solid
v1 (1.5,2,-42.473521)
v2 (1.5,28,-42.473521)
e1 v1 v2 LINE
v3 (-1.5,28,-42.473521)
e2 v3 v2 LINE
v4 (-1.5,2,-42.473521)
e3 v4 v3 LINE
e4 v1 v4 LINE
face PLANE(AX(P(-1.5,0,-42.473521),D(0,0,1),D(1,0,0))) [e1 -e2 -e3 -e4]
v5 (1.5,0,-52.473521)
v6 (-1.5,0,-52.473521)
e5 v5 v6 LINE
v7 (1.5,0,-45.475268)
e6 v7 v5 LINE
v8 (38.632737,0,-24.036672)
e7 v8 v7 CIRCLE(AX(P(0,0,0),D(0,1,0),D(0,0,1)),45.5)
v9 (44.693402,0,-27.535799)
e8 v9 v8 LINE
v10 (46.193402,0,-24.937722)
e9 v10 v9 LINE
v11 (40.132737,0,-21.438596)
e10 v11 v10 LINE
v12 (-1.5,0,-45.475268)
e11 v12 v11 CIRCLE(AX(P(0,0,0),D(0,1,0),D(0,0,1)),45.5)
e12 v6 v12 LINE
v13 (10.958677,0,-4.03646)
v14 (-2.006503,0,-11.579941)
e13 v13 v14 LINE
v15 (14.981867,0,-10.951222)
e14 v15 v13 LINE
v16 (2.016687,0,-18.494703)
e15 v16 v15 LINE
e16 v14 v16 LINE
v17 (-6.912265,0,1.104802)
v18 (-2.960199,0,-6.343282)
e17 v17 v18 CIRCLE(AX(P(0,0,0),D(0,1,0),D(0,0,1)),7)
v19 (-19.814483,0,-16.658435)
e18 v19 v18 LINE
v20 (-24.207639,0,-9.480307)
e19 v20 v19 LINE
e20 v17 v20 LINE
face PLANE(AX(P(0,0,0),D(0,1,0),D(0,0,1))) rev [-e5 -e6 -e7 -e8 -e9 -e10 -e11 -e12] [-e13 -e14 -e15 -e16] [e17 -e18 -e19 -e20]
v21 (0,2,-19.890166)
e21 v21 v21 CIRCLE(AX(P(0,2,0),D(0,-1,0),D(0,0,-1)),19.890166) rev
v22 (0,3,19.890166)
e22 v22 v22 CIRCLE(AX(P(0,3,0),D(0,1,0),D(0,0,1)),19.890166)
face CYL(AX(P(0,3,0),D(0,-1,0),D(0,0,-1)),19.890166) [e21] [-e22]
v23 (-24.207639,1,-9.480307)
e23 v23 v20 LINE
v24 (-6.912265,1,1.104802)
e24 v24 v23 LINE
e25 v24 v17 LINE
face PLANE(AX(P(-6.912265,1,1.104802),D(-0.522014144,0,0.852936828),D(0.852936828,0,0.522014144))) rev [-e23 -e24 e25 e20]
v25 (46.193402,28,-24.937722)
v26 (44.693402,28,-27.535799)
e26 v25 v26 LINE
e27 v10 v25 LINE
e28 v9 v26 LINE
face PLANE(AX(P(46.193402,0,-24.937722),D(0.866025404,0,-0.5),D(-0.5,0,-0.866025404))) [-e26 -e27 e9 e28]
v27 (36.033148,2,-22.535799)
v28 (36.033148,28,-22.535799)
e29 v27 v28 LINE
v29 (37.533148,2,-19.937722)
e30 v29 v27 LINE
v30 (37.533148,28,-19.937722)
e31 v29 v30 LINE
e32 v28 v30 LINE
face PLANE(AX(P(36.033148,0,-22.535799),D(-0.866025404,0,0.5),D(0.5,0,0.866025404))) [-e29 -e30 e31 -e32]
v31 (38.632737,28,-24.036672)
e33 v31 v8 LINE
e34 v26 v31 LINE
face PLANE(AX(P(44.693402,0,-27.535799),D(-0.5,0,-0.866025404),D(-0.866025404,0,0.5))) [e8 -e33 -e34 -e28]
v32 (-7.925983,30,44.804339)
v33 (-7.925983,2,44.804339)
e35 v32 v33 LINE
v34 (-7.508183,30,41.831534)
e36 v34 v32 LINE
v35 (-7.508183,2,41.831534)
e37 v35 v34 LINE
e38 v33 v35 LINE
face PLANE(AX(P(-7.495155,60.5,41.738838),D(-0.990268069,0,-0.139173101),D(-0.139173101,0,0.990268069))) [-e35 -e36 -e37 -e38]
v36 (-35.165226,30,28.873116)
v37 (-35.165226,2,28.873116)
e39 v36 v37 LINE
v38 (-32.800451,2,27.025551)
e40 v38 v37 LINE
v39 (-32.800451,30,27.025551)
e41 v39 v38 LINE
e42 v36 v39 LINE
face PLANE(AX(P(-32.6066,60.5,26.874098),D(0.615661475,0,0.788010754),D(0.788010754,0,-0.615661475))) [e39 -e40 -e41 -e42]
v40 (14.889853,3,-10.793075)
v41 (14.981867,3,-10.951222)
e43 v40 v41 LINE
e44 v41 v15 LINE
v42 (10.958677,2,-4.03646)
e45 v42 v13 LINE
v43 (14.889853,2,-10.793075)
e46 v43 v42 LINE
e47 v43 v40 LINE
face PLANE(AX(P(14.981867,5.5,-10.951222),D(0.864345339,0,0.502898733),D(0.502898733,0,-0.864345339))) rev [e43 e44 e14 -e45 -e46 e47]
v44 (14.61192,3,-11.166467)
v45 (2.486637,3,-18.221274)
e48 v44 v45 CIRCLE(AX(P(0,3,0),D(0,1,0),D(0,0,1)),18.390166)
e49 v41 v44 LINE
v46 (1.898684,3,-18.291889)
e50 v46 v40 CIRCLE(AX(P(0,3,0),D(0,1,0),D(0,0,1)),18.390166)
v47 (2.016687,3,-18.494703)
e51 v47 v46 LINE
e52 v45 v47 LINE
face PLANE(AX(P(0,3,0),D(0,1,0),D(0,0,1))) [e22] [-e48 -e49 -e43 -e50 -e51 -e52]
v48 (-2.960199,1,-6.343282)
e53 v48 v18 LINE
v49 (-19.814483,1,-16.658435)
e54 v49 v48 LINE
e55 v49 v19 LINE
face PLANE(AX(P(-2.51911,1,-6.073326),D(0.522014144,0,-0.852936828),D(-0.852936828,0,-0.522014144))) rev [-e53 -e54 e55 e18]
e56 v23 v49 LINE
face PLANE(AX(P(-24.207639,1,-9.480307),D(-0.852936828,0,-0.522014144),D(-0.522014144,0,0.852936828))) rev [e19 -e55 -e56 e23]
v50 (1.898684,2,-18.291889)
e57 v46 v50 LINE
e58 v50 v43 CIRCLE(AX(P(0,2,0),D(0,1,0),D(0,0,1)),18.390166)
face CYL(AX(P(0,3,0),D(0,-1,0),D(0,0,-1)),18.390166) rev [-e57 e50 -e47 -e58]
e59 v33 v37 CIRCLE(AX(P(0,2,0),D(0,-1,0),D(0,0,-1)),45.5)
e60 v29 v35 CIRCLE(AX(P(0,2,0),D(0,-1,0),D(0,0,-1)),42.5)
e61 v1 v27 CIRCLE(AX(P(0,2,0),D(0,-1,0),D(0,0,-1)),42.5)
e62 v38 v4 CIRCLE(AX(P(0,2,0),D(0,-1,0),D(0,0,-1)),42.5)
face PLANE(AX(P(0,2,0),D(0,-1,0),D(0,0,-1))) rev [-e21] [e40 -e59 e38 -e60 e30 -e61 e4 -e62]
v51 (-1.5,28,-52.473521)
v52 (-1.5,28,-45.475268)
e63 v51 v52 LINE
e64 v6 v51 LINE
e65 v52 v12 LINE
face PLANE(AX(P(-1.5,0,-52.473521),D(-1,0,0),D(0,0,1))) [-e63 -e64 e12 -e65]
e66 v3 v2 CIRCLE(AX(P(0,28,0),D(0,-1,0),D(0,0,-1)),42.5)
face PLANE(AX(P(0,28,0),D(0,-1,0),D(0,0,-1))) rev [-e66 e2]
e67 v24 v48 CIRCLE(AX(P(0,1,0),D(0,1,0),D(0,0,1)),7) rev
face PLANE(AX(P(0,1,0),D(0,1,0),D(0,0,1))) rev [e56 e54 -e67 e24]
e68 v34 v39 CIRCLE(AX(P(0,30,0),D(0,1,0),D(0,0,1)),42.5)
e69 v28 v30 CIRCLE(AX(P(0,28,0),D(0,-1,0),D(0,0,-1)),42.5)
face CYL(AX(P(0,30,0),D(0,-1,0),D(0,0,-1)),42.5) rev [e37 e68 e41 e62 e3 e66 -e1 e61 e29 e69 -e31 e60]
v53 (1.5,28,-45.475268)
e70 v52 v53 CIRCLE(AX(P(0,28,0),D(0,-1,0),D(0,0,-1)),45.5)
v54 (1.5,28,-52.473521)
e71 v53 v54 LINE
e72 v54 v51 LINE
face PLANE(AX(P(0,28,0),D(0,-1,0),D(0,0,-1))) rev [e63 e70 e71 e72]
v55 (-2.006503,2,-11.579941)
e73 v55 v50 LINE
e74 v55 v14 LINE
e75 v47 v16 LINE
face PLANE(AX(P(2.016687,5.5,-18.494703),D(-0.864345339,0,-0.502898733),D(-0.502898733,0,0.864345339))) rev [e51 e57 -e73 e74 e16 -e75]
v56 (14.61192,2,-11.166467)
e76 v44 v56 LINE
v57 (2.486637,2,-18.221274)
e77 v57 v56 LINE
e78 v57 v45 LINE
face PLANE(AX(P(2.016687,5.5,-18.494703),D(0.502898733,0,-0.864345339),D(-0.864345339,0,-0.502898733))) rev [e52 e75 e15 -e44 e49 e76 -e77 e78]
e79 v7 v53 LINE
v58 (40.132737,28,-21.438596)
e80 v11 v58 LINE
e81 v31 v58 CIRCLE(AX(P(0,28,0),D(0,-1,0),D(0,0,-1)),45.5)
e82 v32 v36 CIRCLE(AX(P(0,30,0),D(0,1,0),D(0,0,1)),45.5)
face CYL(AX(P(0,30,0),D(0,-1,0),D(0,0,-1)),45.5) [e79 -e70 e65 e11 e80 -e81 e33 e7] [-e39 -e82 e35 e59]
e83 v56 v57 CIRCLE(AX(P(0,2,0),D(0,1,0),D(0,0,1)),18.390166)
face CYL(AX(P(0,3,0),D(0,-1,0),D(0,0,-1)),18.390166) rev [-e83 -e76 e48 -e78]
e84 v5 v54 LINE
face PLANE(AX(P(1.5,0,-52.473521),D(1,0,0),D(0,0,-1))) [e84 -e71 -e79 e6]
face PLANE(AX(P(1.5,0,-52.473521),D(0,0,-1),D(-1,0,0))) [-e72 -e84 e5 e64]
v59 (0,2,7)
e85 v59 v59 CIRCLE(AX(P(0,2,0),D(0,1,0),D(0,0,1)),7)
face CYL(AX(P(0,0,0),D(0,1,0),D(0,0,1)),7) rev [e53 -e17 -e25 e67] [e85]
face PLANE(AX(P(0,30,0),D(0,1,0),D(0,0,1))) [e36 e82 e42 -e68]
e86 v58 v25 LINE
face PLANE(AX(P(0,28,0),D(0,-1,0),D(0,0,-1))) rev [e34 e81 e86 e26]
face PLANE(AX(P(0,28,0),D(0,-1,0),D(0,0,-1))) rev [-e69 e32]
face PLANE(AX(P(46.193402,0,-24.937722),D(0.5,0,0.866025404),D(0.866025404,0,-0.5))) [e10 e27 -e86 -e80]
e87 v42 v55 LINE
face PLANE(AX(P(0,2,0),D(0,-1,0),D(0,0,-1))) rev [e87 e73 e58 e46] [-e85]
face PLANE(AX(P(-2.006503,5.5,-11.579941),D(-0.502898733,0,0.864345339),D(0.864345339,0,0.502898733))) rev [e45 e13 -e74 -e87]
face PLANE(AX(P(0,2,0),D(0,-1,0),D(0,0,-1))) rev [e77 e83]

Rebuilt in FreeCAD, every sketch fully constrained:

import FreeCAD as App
import Part
import Sketcher

V = App.Vector
Q = App.Units.Quantity


def add_polygon(sketch, points):
    """Adds a closed chain of lines whose ends are joined by coincident constraints."""
    first, n = sketch.GeometryCount, len(points)
    for a, b in zip(points, points[1:] + points[:1]):
        sketch.addGeometry(Part.LineSegment(App.Vector(*a, 0), App.Vector(*b, 0)), False)
    for i in range(n):
        sketch.addConstraint(Sketcher.Constraint("Coincident", first + i, 2, first + (i + 1) % n, 1))

doc = App.newDocument("Part")
params = doc.addObject("Spreadsheet::Sheet", "Params")
for row, (alias, value) in enumerate([
    ("sketch1_diameter", "91 mm"),
    ("sketch1_diameter2", "85 mm"),
    ("pad1_length", "30 mm"),
    ("sketch2_diameter", "91 mm"),
    ("pad2_length", "2 mm"),
    ("sketch3_diameter", "14 mm"),
    ("pocket1_length", "2 mm"),
    ("sketch4_width", "3 mm"),
    ("sketch4_height", "10 mm"),
    ("sketch4_length", "10 mm"),
    ("sketch4_length2", "3 mm"),
    ("pad3_length", "26 mm"),
    ("pad3_length2", "2 mm"),
    ("pad4_length", "1 mm"),
    ("sketch6_length", "15 mm"),
    ("sketch6_length2", "8 mm"),
    ("pocket2_length", "5.5 mm"),
    ("pocket3_length", "58.5 mm"),
    ("pocket4_length", "1 mm"),
], start=1):
    params.set(f"A{row}", alias)
    params.set(f"B{row}", "=" + value)
    params.setAlias(f"B{row}", alias)

body = doc.addObject("PartDesign::Body", "Body")

# Sketch on XZ plane
sketch1 = doc.addObject("Sketcher::SketchObject", "Sketch")
body.addObject(sketch1)
sketch1.AttachmentSupport = (doc.XZ_Plane, [""])
sketch1.MapMode = "FlatFace"
sketch1.addGeometry([
    Part.Circle(V(0, 0, 0), V(0, 0, 1), 46),
    Part.Circle(V(0, 0, 0), V(0, 0, 1), 42),
], False)
sketch1.addConstraint([
    Sketcher.Constraint("Coincident", 0, 3, -1, 1),
    Sketcher.Constraint("Coincident", 1, 3, -1, 1),
    Sketcher.Constraint("Diameter", 0, 91.0),
    Sketcher.Constraint("Diameter", 1, 85.0),
])
sketch1.setExpression("Constraints[2]", "Params.sketch1_diameter")
sketch1.setExpression("Constraints[3]", "Params.sketch1_diameter2")
pad1 = doc.addObject("PartDesign::Pad", "Pad")
body.addObject(pad1)
pad1.Profile = sketch1
pad1.setExpression("Length", "Params.pad1_length")
pad1.Reversed = True

# Sketch on XZ plane
sketch2 = doc.addObject("Sketcher::SketchObject", "Sketch001")
body.addObject(sketch2)
sketch2.AttachmentSupport = (doc.XZ_Plane, [""])
sketch2.MapMode = "FlatFace"
sketch2.addGeometry(Part.Circle(V(0, 0, 0), V(0, 0, 1), 46), False)
sketch2.addConstraint([
    Sketcher.Constraint("Coincident", 0, 3, -1, 1),
    Sketcher.Constraint("Diameter", 0, 91.0),
])
sketch2.setExpression("Constraints[1]", "Params.sketch2_diameter")
pad2 = doc.addObject("PartDesign::Pad", "Pad001")
body.addObject(pad2)
pad2.Profile = sketch2
pad2.setExpression("Length", "Params.pad2_length")
pad2.Reversed = True

# Sketch on XZ plane
sketch3 = doc.addObject("Sketcher::SketchObject", "Sketch002")
body.addObject(sketch3)
sketch3.AttachmentSupport = (doc.XZ_Plane, [""])
sketch3.MapMode = "FlatFace"
sketch3.AttachmentOffset = App.Placement(V(0, 0, -2), App.Rotation())
sketch3.addGeometry(Part.Circle(V(0, 0, 0), V(0, 0, 1), 7), False)
sketch3.addConstraint([
    Sketcher.Constraint("Coincident", 0, 3, -1, 1),
    Sketcher.Constraint("Diameter", 0, 14.0),
])
sketch3.setExpression("Constraints[1]", "Params.sketch3_diameter")
pocket1 = doc.addObject("PartDesign::Pocket", "Pocket")
body.addObject(pocket1)
pocket1.Profile = sketch3
pocket1.setExpression("Length", "Params.pocket1_length")
pocket1.Reversed = True

# Sketch on XZ plane
sketch4 = doc.addObject("Sketcher::SketchObject", "Sketch003")
body.addObject(sketch4)
sketch4.AttachmentSupport = (doc.XZ_Plane, [""])
sketch4.MapMode = "FlatFace"
sketch4.AttachmentOffset = App.Placement(V(0, 0, -2), App.Rotation())
add_polygon(sketch4, [(-1.5, -52.5), (-1.5, -42.5), (1.5, -42.5), (1.5, -52.5)])  # lines 0-3
add_polygon(sketch4, [(37.5, -19.9), (46.2, -24.9), (44.7, -27.5), (36, -22.5)])  # lines 4-7
sketch4.addConstraint([
    Sketcher.Constraint("Vertical", 0),
    Sketcher.Constraint("Horizontal", 1),
    Sketcher.Constraint("Vertical", 2),
    Sketcher.Constraint("Horizontal", 3),
    Sketcher.Constraint("Perpendicular", 4, 5),
    Sketcher.Constraint("Perpendicular", 5, 6),
    Sketcher.Constraint("Perpendicular", 6, 7),
    Sketcher.Constraint("DistanceX", 1, 1, 1, 2, 3.0),
    Sketcher.Constraint("DistanceY", 0, 1, 0, 2, 10.0),
    Sketcher.Constraint("Angle", 4, Q("-30 deg")),
    Sketcher.Constraint("Distance", 4, 10.0),
    Sketcher.Constraint("Distance", 5, 3.0),
    Sketcher.Constraint("DistanceX", 0, 2, -1, 1, 1.5),
    Sketcher.Constraint("DistanceY", 5, 2, -1, 1, 27.535799),
    Sketcher.Constraint("DistanceY", 1, 2, 4, 2, 17.535799),
    Sketcher.Constraint("DistanceX", -1, 1, 6, 2, 36.033148),
])
sketch4.setExpression("Constraints[15]", "Params.sketch4_width")
sketch4.setExpression("Constraints[16]", "Params.sketch4_height")
sketch4.setExpression("Constraints[18]", "Params.sketch4_length")
sketch4.setExpression("Constraints[19]", "Params.sketch4_length2")
pad3 = doc.addObject("PartDesign::Pad", "Pad002")
body.addObject(pad3)
pad3.Profile = sketch4
pad3.Type = "TwoLengths"
pad3.setExpression("Length", "Params.pad3_length")
pad3.setExpression("Length2", "Params.pad3_length2")
pad3.Reversed = True

# Sketch on XZ plane
sketch5 = doc.addObject("Sketcher::SketchObject", "Sketch004")
body.addObject(sketch5)
sketch5.AttachmentSupport = (doc.XZ_Plane, [""])
sketch5.MapMode = "FlatFace"
sketch5.AttachmentOffset = App.Placement(V(0, 0, -2), App.Rotation())
sketch5.addGeometry([
    Part.Circle(V(0, 0, 0), V(0, 0, 1), 20),
    Part.Circle(V(0, 0, 0), V(0, 0, 1), 18),
], False)
sketch5.addConstraint([
    Sketcher.Constraint("Coincident", 0, 3, -1, 1),
    Sketcher.Constraint("Coincident", 1, 3, -1, 1),
    Sketcher.Constraint("Diameter", 0, 39.780331),
    Sketcher.Constraint("Diameter", 1, 36.780331),
])
pad4 = doc.addObject("PartDesign::Pad", "Pad003")
body.addObject(pad4)
pad4.Profile = sketch5
pad4.setExpression("Length", "Params.pad4_length")
pad4.Reversed = True

# Sketch on XZ plane
sketch6 = doc.addObject("Sketcher::SketchObject", "Sketch005")
body.addObject(sketch6)
sketch6.AttachmentSupport = (doc.XZ_Plane, [""])
sketch6.MapMode = "FlatFace"
add_polygon(sketch6, [(2, -18), (15, -11), (11, -4), (-2, -12)])  # lines 0-3
sketch6.addConstraint([
    Sketcher.Constraint("Perpendicular", 0, 1),
    Sketcher.Constraint("Perpendicular", 1, 2),
    Sketcher.Constraint("Perpendicular", 2, 3),
    Sketcher.Constraint("Distance", 0, 15.0),
    Sketcher.Constraint("Distance", 1, 8.0),
    Sketcher.Constraint("DistanceY", 1, 2, -1, 1, 4.03646),
    Sketcher.Constraint("DistanceY", 2, 2, -1, 1, 11.579941),
    Sketcher.Constraint("DistanceX", -1, 1, 0, 2, 14.981867),
])
sketch6.setExpression("Constraints[7]", "Params.sketch6_length")
sketch6.setExpression("Constraints[8]", "Params.sketch6_length2")
pocket2 = doc.addObject("PartDesign::Pocket", "Pocket001")
body.addObject(pocket2)
pocket2.Profile = sketch6
pocket2.setExpression("Length", "Params.pocket2_length")

# Sketch on XZ plane
sketch7 = doc.addObject("Sketcher::SketchObject", "Sketch006")
body.addObject(sketch7)
sketch7.AttachmentSupport = (doc.XZ_Plane, [""])
sketch7.MapMode = "FlatFace"
sketch7.AttachmentOffset = App.Placement(V(0, 0, -2), App.Rotation())
add_polygon(sketch7, [(-32.6, 26.9), (-35.2, 28.9), (-33.8, 37.8), (-11.7, 48.8), (-7.9, 44.8), (-7.5, 41.7), (-10, 35.4), (-26, 26.9)])  # lines 0-7
sketch7.addConstraint([
    Sketcher.Constraint("Horizontal", 7),
    Sketcher.Constraint("Angle", 0, Q("142 deg")),
    Sketcher.Constraint("Angle", 4, Q("-82 deg")),
    Sketcher.Constraint("DistanceX", 7, 2, 7, 1, 6.641329),
    Sketcher.Constraint("DistanceY", -1, 1, 6, 2, 26.874098),
    Sketcher.Constraint("DistanceX", 7, 2, -1, 1, 32.6066),
    Sketcher.Constraint("DistanceX", 2, 2, 3, 2, 3.812302),
    Sketcher.Constraint("DistanceY", 4, 2, 3, 2, 3.065501),
    Sketcher.Constraint("Distance", 2, 24.682471),
    Sketcher.Constraint("Distance", 3, 5.502659),
    Sketcher.Constraint("Distance", 6, 18.127242),
    Sketcher.Constraint("DistanceX", 1, 2, -1, 1, 33.824989),
    Sketcher.Constraint("DistanceY", -1, 1, 1, 2, 37.754161),
    Sketcher.Constraint("DistanceY", -1, 1, 3, 2, 44.804339),
    Sketcher.Constraint("DistanceY", -1, 1, 5, 2, 35.41923),
    Sketcher.Constraint("DistanceX", 0, 2, 2, 2, 23.426942),
])
pocket3 = doc.addObject("PartDesign::Pocket", "Pocket002")
body.addObject(pocket3)
pocket3.Profile = sketch7
pocket3.setExpression("Length", "Params.pocket3_length")

# Sketch on XZ plane
sketch8 = doc.addObject("Sketcher::SketchObject", "Sketch007")
body.addObject(sketch8)
sketch8.AttachmentSupport = (doc.XZ_Plane, [""])
sketch8.MapMode = "FlatFace"
add_polygon(sketch8, [(-7, 1), (-24, -9), (-20, -17), (-3, -6)])  # lines 0-3
sketch8.addConstraint([
    Sketcher.Constraint("Perpendicular", 0, 1),
    Sketcher.Constraint("Perpendicular", 1, 2),
    Sketcher.Constraint("Perpendicular", 2, 3),
    Sketcher.Constraint("Distance", 1, 8.415779),
    Sketcher.Constraint("DistanceX", 0, 2, -1, 1, 24.207639),
    Sketcher.Constraint("DistanceX", 2, 2, -1, 1, 2.51911),
    Sketcher.Constraint("DistanceY", 1, 2, 0, 2, 7.178128),
    Sketcher.Constraint("DistanceY", 0, 2, -1, 1, 9.480307),
])
pocket4 = doc.addObject("PartDesign::Pocket", "Pocket003")
body.addObject(pocket4)
pocket4.Profile = sketch8
pocket4.setExpression("Length", "Params.pocket4_length")

doc.recompute()
